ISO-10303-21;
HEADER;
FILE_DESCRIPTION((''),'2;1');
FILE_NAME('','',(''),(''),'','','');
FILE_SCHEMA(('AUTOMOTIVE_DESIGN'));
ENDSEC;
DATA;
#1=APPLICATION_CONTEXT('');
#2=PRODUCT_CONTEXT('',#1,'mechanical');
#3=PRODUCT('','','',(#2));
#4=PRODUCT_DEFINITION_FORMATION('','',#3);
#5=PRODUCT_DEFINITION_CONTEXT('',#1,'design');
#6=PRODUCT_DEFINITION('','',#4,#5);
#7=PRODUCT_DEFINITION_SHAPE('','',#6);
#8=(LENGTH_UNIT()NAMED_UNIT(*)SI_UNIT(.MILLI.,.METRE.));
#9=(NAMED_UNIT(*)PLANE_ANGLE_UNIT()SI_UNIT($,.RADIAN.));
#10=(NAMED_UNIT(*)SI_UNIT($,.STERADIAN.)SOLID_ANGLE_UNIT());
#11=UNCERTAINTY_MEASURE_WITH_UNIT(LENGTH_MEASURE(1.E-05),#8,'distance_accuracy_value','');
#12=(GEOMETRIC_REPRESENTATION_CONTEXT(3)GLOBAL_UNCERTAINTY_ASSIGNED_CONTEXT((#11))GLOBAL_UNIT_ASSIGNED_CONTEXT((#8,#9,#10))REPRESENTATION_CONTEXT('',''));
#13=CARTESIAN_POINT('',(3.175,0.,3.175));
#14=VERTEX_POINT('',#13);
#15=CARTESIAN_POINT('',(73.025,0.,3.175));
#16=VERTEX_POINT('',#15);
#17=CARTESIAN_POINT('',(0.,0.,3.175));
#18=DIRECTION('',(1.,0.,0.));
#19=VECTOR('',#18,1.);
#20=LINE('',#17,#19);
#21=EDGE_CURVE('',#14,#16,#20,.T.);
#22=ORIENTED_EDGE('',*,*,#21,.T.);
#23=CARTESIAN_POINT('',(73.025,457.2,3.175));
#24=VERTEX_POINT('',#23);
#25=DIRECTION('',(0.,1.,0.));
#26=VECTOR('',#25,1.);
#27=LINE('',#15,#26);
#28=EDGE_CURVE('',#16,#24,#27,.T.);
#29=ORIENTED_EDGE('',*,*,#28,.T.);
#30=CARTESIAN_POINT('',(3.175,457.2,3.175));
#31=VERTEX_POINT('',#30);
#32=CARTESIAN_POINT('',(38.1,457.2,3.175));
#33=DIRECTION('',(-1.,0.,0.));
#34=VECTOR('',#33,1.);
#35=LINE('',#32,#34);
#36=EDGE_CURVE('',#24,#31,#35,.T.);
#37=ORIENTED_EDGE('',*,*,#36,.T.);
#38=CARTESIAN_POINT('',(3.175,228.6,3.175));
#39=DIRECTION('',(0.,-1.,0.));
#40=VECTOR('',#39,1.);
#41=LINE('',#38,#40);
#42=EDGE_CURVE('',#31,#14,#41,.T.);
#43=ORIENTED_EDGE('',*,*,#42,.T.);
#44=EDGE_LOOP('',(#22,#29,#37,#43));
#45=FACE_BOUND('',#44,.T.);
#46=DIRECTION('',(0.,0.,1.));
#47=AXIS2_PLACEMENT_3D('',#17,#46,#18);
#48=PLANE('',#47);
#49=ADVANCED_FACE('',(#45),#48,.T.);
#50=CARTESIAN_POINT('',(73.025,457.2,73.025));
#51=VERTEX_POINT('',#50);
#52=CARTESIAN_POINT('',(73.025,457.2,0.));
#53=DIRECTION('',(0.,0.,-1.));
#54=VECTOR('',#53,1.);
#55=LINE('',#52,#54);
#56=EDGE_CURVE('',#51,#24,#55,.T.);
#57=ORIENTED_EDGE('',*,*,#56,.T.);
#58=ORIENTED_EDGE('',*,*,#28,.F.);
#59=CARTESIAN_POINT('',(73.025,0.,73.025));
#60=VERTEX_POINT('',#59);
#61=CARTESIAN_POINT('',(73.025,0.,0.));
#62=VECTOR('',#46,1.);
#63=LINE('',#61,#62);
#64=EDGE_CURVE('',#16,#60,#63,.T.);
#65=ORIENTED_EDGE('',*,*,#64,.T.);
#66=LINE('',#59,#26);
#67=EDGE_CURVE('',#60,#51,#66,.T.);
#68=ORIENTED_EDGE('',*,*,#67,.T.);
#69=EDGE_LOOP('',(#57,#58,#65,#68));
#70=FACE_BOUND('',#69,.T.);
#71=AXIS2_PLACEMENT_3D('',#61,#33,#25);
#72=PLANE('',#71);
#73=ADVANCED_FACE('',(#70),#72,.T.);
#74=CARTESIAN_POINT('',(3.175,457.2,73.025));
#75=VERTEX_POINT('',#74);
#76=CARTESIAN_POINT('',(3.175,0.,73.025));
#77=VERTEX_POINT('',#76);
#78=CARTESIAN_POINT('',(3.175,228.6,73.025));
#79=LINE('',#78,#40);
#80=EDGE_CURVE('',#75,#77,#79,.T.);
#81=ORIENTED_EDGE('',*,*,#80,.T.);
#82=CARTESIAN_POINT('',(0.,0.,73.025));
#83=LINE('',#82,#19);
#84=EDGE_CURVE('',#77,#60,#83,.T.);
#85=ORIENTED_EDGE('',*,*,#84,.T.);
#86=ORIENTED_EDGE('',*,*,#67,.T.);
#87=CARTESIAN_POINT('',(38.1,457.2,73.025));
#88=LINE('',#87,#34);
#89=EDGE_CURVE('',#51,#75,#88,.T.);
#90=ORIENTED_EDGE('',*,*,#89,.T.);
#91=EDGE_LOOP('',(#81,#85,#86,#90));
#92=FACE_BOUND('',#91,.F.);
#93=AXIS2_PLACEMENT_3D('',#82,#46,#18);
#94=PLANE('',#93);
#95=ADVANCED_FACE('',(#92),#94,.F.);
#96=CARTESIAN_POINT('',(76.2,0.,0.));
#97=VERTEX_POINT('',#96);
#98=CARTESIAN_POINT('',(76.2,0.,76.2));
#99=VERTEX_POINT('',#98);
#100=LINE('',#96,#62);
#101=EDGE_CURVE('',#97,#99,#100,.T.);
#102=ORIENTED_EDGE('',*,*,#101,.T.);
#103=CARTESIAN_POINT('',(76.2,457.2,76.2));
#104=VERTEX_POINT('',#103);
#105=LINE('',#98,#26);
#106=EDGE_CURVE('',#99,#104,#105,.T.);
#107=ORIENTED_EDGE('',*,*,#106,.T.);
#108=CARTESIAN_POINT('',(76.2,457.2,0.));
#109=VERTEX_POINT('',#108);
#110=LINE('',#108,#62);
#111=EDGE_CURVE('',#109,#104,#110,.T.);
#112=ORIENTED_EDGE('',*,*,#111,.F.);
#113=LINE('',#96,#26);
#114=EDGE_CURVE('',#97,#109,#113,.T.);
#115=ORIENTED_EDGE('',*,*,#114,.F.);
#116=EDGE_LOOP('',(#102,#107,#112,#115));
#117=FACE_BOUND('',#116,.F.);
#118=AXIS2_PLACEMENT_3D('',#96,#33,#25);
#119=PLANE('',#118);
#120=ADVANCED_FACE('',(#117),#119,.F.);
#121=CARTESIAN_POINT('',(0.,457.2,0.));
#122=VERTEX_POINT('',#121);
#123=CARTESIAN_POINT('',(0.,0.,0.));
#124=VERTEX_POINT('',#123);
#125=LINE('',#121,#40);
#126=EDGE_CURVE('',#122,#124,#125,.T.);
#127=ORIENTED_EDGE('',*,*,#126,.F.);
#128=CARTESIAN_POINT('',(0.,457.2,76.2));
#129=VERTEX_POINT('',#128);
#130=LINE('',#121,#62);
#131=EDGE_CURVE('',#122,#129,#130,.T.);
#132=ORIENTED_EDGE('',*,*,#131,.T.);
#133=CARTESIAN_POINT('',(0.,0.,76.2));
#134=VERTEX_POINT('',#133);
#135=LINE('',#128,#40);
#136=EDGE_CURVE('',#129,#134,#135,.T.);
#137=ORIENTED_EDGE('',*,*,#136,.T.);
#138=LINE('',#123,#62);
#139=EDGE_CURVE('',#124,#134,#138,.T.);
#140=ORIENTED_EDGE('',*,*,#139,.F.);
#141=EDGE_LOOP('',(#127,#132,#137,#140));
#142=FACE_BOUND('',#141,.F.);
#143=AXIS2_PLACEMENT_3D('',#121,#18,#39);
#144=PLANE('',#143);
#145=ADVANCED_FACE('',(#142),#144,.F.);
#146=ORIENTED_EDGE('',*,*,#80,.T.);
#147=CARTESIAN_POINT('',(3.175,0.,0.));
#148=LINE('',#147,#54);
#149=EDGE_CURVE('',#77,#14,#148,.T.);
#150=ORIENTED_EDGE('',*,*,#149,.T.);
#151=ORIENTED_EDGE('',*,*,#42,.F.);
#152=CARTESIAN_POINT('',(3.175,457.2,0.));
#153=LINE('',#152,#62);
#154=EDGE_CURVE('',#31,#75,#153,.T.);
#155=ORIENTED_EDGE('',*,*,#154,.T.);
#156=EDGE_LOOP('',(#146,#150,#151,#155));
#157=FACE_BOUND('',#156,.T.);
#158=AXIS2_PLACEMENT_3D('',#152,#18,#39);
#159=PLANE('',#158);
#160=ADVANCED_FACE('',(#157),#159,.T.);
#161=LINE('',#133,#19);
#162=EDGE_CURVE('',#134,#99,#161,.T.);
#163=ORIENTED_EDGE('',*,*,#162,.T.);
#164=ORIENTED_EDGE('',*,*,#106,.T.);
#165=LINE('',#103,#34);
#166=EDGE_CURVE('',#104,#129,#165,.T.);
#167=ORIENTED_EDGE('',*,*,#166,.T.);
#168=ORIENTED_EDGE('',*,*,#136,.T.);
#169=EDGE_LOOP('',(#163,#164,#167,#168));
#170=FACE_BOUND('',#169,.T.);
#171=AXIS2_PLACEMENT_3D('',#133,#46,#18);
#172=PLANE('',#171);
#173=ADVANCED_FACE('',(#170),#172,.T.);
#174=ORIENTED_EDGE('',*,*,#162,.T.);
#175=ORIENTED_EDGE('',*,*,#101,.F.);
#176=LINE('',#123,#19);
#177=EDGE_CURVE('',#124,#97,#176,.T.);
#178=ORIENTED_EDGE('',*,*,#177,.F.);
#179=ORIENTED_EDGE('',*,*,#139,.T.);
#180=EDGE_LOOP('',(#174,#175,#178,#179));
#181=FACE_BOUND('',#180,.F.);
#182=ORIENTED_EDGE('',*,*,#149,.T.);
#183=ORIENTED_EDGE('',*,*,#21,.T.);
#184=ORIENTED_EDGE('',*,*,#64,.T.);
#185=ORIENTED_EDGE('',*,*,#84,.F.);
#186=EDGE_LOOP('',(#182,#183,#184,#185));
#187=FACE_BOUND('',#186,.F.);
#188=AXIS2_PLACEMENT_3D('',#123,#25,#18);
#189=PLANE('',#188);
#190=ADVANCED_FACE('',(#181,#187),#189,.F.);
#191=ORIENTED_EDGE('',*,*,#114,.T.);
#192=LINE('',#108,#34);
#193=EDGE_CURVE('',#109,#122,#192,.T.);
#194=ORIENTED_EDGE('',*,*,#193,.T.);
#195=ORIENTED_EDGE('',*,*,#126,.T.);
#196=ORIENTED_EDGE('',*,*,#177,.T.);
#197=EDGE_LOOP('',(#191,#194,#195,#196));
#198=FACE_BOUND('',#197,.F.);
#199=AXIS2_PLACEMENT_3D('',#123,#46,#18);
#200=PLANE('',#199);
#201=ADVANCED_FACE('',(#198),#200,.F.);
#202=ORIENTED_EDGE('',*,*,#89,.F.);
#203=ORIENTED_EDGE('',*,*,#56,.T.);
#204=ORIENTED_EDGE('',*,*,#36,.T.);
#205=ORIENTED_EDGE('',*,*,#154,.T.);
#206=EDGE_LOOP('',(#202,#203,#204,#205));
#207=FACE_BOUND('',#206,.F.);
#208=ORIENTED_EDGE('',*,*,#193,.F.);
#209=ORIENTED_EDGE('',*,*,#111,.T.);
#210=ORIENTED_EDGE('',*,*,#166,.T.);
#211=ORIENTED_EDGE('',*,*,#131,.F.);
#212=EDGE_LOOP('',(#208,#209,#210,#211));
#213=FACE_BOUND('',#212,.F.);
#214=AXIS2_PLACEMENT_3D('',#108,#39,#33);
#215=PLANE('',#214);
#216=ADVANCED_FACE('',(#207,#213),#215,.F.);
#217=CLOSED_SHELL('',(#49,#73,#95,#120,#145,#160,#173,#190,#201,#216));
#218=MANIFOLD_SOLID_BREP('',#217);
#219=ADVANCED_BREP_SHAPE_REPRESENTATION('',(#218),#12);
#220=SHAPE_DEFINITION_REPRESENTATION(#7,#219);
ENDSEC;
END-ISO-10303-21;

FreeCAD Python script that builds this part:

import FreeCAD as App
import Part
import Sketcher

V = App.Vector
Q = App.Units.Quantity


def faces_at(feature, points):
    """Names of the faces that lie closest to the given points."""
    faces = feature.Shape.Faces
    near = lambda p: min(range(len(faces)), key=lambda i: faces[i].distToShape(Part.Vertex(*p))[0])
    return sorted({f"Face{near(p) + 1}" for p in points})


def add_polygon(sketch, points):
    """Adds a closed chain of lines whose ends are joined by coincident constraints."""
    first, n = sketch.GeometryCount, len(points)
    for a, b in zip(points, points[1:] + points[:1]):
        sketch.addGeometry(Part.LineSegment(App.Vector(*a, 0), App.Vector(*b, 0)), False)
    for i in range(n):
        sketch.addConstraint(Sketcher.Constraint("Coincident", first + i, 2, first + (i + 1) % n, 1))

doc = App.newDocument("Part")
body = doc.addObject("PartDesign::Body", "Body")

sketch1 = body.newObject("Sketcher::SketchObject", "Sketch")
sketch1.AttachmentSupport = (doc.getObject("XY_Plane"), [""])
sketch1.MapMode = "FlatFace"
add_polygon(sketch1, [(0, 457), (0, 0), (76, 0), (76, 457)])
sketch1.addConstraint([
    Sketcher.Constraint("Vertical", 0),
    Sketcher.Constraint("Horizontal", 1),
    Sketcher.Constraint("Vertical", 2),
    Sketcher.Constraint("Horizontal", 3),
    Sketcher.Constraint("Coincident", 0, 2, -1, 1),
    Sketcher.Constraint("DistanceX", 1, 1, 1, 2, Q("3 in")),
    Sketcher.Constraint("DistanceY", 0, 2, 0, 1, Q("18 in")),
])
pad1 = body.newObject("PartDesign::Pad", "Pad")
pad1.Profile = sketch1
pad1.Length = Q("3 in")
doc.recompute()

thickness = body.newObject("PartDesign::Thickness", "Thickness")
thickness.Base = (pad1, faces_at(pad1, [(50.8, 457.2, 25.4), (25.4, 0, 25.4)]))
thickness.Value = Q("0.125 in")
thickness.Reversed = True
thickness.Join = "Intersection"

doc.recompute()
